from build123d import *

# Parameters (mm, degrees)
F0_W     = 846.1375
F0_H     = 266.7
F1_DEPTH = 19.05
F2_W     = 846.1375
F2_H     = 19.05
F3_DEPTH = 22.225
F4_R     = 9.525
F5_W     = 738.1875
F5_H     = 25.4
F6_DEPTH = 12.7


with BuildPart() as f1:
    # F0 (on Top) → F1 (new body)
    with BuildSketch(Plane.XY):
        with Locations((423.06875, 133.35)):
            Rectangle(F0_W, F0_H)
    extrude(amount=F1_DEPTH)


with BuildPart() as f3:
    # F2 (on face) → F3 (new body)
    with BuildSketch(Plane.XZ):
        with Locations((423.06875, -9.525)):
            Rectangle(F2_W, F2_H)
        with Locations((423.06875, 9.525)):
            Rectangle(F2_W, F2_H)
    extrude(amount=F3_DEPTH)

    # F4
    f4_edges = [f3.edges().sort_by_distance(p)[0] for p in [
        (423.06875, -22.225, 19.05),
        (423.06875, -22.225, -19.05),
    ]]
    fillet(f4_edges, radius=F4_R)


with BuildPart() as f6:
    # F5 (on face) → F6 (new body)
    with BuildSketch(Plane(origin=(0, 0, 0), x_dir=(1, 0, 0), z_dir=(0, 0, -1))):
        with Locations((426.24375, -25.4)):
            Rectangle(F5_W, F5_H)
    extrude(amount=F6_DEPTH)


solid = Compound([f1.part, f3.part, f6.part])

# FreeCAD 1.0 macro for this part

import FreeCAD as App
import Part
import Sketcher
Q = App.Units.Quantity


def edges_at(feature, points):
    """Names of the edges that pass closest to the given points."""
    edges = feature.Shape.Edges
    near = lambda p: min(range(len(edges)), key=lambda i: edges[i].distToShape(Part.Vertex(*p))[0])
    return sorted({f"Edge{near(p) + 1}" for p in points})


def add_polygon(sketch, points):
    """Adds a closed chain of lines whose ends are joined by coincident constraints."""
    first, n = sketch.GeometryCount, len(points)
    for a, b in zip(points, points[1:] + points[:1]):
        sketch.addGeometry(Part.LineSegment(App.Vector(*a, 0), App.Vector(*b, 0)), False)
    for i in range(n):
        sketch.addConstraint(Sketcher.Constraint("Coincident", first + i, 2, first + (i + 1) % n, 1))

doc = App.newDocument("Part")
params = doc.addObject("Spreadsheet::Sheet", "Params")
for row, (alias, value) in enumerate([
    ("sketch1_height", "10.5 in"),
    ("sketch1_width", "33.3125 in"),
    ("pad1_length", "0.75 in"),
    ("sketch2_height", "1.5 in"),
    ("sketch2_width", "33.3125 in"),
    ("pad2_length", "0.875 in"),
    ("fillet_radius", "0.375 in"),
    ("sketch3_height", "1 in"),
    ("sketch3_width", "29.0625 in"),
    ("pad3_length", "0.5 in"),
], start=1):
    params.set(f"A{row}", alias)
    params.set(f"B{row}", "=" + value)
    params.setAlias(f"B{row}", alias)

body = doc.addObject("PartDesign::Body", "Body")

sketch1 = body.newObject("Sketcher::SketchObject", "Sketch")
sketch1.AttachmentSupport = (doc.getObject("XY_Plane"), [""])
sketch1.MapMode = "FlatFace"
add_polygon(sketch1, [(0, 266.7), (0, 0), (846.1375, 0), (846.1375, 266.7)])
sketch1.addConstraint([
    Sketcher.Constraint("Vertical", 0),
    Sketcher.Constraint("Horizontal", 1),
    Sketcher.Constraint("Vertical", 2),
    Sketcher.Constraint("Horizontal", 3),
    Sketcher.Constraint("Coincident", 0, 2, -1, 1),
    Sketcher.Constraint("DistanceY", 0, 2, 0, 1, Q("10.5 in")),
    Sketcher.Constraint("DistanceX", 1, 1, 1, 2, Q("33.3125 in")),
])
sketch1.setExpression("Constraints[9]", "Params.sketch1_height")
sketch1.setExpression("Constraints[10]", "Params.sketch1_width")
pad1 = body.newObject("PartDesign::Pad", "Pad")
pad1.Profile = sketch1
pad1.setExpression("Length", "Params.pad1_length")
body2 = doc.addObject("PartDesign::Body", "Body001")

sketch2 = body2.newObject("Sketcher::SketchObject", "Sketch001")
sketch2.AttachmentSupport = (doc.getObject("XZ_Plane001"), [""])
sketch2.MapMode = "FlatFace"
add_polygon(sketch2, [(0, -19.05), (846.1375, -19.05), (846.1375, 19.05), (0, 19.05)])
sketch2.addConstraint([
    Sketcher.Constraint("Horizontal", 0),
    Sketcher.Constraint("Vertical", 1),
    Sketcher.Constraint("Horizontal", 2),
    Sketcher.Constraint("Vertical", 3),
    Sketcher.Constraint("Symmetric", 2, 2, 3, 2, -1, 1),
    Sketcher.Constraint("DistanceY", 1, 1, 1, 2, Q("1.5 in")),
    Sketcher.Constraint("DistanceX", 0, 1, 0, 2, Q("33.3125 in")),
])
sketch2.setExpression("Constraints[9]", "Params.sketch2_height")
sketch2.setExpression("Constraints[10]", "Params.sketch2_width")
pad2 = body2.newObject("PartDesign::Pad", "Pad001")
pad2.Profile = sketch2
pad2.setExpression("Length", "Params.pad2_length")
doc.recompute()

fillet = body2.newObject("PartDesign::Fillet", "Fillet")
fillet.Base = (pad2, edges_at(pad2, [(423.069, -22.225, 19.05), (423.069, -22.225, -19.05)]))
fillet.setExpression("Radius", "Params.fillet_radius")
body3 = doc.addObject("PartDesign::Body", "Body002")

sketch3 = body3.newObject("Sketcher::SketchObject", "Sketch002")
sketch3.AttachmentSupport = (doc.getObject("XY_Plane002"), [""])
sketch3.MapMode = "FlatFace"
add_polygon(sketch3, [(57.15, 12.7), (57.15, 38.1), (795.3375, 38.1), (795.3375, 12.7)])
sketch3.addConstraint([
    Sketcher.Constraint("Vertical", 0),
    Sketcher.Constraint("Horizontal", 1),
    Sketcher.Constraint("Vertical", 2),
    Sketcher.Constraint("Horizontal", 3),
    Sketcher.Constraint("DistanceY", 0, 1, 0, 2, Q("1 in")),
    Sketcher.Constraint("DistanceY", -1, 1, 0, 2, Q("1.5 in")),
    Sketcher.Constraint("DistanceX", 1, 1, 1, 2, Q("29.0625 in")),
    Sketcher.Constraint("DistanceX", -1, 1, 0, 2, Q("2.25 in")),
])
sketch3.setExpression("Constraints[8]", "Params.sketch3_height")
sketch3.setExpression("Constraints[10]", "Params.sketch3_width")
pad3 = body3.newObject("PartDesign::Pad", "Pad002")
pad3.Profile = sketch3
pad3.setExpression("Length", "Params.pad3_length")
pad3.Reversed = True

doc.recompute()
